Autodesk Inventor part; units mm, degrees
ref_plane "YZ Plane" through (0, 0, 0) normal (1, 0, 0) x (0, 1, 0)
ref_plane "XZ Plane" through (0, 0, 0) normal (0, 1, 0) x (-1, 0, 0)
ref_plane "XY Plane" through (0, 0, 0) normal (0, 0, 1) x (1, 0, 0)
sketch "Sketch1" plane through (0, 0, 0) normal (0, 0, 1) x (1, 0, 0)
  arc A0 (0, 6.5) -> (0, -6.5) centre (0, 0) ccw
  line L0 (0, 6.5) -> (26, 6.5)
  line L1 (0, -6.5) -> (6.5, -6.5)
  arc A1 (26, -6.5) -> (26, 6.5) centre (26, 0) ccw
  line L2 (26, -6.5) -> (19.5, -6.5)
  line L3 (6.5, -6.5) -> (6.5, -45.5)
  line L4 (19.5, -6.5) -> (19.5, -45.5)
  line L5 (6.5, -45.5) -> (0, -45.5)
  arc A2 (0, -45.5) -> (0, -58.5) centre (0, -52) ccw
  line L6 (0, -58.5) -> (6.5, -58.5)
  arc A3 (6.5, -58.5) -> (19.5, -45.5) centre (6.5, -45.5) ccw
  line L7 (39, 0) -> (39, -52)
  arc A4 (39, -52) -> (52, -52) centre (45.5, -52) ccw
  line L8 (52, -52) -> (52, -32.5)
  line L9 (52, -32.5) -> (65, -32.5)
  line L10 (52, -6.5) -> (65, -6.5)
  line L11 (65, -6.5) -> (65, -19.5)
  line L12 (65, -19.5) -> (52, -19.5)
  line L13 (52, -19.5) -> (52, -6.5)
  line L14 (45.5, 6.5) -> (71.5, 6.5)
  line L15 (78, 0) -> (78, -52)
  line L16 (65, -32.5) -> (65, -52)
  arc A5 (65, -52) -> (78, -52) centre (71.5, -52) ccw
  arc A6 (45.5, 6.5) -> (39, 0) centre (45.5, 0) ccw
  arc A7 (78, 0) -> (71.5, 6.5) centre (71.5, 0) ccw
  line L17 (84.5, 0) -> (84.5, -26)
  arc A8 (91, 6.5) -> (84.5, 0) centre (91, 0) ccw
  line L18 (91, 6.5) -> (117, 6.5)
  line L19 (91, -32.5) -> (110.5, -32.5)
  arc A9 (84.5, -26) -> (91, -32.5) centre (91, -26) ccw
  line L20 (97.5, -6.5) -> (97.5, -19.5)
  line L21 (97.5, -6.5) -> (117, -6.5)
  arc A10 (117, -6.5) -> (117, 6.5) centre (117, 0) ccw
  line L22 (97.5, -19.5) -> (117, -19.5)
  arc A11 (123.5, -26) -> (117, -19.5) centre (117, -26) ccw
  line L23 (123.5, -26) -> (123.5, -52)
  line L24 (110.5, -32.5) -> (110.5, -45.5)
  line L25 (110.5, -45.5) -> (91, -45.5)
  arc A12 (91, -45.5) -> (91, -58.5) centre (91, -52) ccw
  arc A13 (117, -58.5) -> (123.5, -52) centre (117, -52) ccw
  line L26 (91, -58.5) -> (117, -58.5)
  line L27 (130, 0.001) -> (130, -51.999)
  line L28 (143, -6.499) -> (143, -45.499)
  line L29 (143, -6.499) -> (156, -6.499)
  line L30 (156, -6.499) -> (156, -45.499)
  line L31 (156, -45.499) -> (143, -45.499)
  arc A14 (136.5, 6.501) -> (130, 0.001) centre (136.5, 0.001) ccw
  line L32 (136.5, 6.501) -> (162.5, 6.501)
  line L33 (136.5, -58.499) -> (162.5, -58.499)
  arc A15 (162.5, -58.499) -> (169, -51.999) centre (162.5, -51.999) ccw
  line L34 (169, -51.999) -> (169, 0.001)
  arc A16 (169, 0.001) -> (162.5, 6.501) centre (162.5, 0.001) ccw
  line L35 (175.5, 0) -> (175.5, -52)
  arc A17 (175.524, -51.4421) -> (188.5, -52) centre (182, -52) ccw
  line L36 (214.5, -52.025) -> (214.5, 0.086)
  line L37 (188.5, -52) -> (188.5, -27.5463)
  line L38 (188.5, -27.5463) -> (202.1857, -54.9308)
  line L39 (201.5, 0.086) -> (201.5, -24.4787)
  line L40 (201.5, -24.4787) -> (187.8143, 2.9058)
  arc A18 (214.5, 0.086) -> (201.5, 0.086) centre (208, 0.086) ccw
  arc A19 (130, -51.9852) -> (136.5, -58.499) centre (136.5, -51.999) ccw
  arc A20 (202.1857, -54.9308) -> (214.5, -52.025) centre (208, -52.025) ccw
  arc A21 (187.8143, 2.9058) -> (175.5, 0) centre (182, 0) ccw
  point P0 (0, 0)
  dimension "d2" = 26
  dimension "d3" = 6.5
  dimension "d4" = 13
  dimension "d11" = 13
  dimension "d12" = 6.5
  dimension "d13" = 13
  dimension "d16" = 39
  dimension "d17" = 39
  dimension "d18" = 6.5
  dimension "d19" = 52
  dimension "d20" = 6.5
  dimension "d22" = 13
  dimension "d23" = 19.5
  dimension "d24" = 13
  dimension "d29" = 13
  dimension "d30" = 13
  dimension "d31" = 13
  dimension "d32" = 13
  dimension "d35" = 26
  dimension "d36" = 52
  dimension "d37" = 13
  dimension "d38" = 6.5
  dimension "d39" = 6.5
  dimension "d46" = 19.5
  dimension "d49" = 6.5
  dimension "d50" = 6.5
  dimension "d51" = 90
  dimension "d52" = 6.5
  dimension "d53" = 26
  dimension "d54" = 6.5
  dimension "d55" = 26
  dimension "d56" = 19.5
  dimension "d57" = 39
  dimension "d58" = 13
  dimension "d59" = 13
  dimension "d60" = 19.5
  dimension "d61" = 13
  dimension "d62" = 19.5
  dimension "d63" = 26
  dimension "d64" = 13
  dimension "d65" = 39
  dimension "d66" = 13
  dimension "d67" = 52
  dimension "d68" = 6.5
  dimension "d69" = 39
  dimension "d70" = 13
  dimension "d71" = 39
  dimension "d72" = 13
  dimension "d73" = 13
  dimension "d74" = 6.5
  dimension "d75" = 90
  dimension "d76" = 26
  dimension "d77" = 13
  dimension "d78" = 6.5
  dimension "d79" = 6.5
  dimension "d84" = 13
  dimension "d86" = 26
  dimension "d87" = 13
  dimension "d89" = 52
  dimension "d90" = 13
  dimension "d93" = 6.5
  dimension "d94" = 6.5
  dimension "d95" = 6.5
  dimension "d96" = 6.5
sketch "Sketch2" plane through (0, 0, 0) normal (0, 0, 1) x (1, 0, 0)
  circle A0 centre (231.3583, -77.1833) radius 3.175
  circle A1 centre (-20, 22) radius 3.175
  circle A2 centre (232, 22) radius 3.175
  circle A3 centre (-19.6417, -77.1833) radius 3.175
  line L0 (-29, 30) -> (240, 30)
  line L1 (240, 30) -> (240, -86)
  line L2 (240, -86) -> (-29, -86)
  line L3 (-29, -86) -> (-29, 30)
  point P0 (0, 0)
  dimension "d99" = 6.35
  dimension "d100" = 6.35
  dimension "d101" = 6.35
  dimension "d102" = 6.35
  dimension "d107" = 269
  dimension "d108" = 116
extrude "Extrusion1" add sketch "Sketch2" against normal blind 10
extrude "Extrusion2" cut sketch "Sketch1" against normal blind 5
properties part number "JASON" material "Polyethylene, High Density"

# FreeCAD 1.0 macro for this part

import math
import FreeCAD as App
import Part
import Sketcher
from FreeCAD import Vector

doc = App.newDocument("Part")
body = doc.addObject("PartDesign::Body", "Body")

sketch1 = body.newObject("Sketcher::SketchObject", "Sketch")
sketch1.AttachmentSupport = (doc.getObject("XY_Plane"), [""])
sketch1.MapMode = "FlatFace"
sketch1.addGeometry(Part.LineSegment(Vector(240, 30, 0), Vector(-29, 30, 0)), False)
sketch1.addGeometry(Part.LineSegment(Vector(-29, 30, 0), Vector(-29, -86, 0)), False)
sketch1.addGeometry(Part.LineSegment(Vector(-29, -86, 0), Vector(240, -86, 0)), False)
sketch1.addGeometry(Part.LineSegment(Vector(240, -86, 0), Vector(240, 30, 0)), False)
sketch1.addGeometry(Part.Circle(Vector(-19.6, -77.2, 0), Vector(0, 0, 1), 3.2), False)
sketch1.addGeometry(Part.Circle(Vector(231.4, -77.2, 0), Vector(0, 0, 1), 3.2), False)
sketch1.addGeometry(Part.Circle(Vector(-20, 22, 0), Vector(0, 0, 1), 3.2), False)
sketch1.addGeometry(Part.Circle(Vector(232, 22, 0), Vector(0, 0, 1), 3.2), False)
sketch1.addConstraint(Sketcher.Constraint("Coincident", 0, 2, 1, 1))
sketch1.addConstraint(Sketcher.Constraint("Coincident", 1, 2, 2, 1))
sketch1.addConstraint(Sketcher.Constraint("Coincident", 2, 2, 3, 1))
sketch1.addConstraint(Sketcher.Constraint("Coincident", 3, 2, 0, 1))
sketch1.addConstraint(Sketcher.Constraint("Horizontal", 0))
sketch1.addConstraint(Sketcher.Constraint("Vertical", 1))
sketch1.addConstraint(Sketcher.Constraint("Horizontal", 2))
sketch1.addConstraint(Sketcher.Constraint("Vertical", 3))
sketch1.addConstraint(Sketcher.Constraint("Equal", 4, 5))
sketch1.addConstraint(Sketcher.Constraint("Equal", 5, 6))
sketch1.addConstraint(Sketcher.Constraint("Equal", 6, 7))
sketch1.addConstraint(Sketcher.Constraint("Horizontal", 4, 3, 5, 3))
sketch1.addConstraint(Sketcher.Constraint("Horizontal", 6, 3, 7, 3))
sketch1.addConstraint(Sketcher.Constraint("Diameter", 4, 6.35))
sketch1.addConstraint(Sketcher.Constraint("DistanceX", 0, 2, 0, 1, 269.0))
sketch1.addConstraint(Sketcher.Constraint("DistanceY", 1, 2, 1, 1, 116.0))
sketch1.addConstraint(Sketcher.Constraint("DistanceX", 6, 3, -1, 1, 20.0))
sketch1.addConstraint(Sketcher.Constraint("DistanceY", -1, 1, 6, 3, 22.0))
sketch1.addConstraint(Sketcher.Constraint("DistanceX", -1, 1, 7, 3, 232.0))
sketch1.addConstraint(Sketcher.Constraint("DistanceX", 0, 2, -1, 1, 29.0))
sketch1.addConstraint(Sketcher.Constraint("DistanceY", -1, 1, 0, 2, 30.0))
sketch1.addConstraint(Sketcher.Constraint("DistanceX", 4, 3, 5, 3, 251.0))
sketch1.addConstraint(Sketcher.Constraint("DistanceX", 4, 3, -1, 1, 19.6417))
sketch1.addConstraint(Sketcher.Constraint("DistanceY", 4, 3, -1, 1, 77.1833))
pad1 = body.newObject("PartDesign::Pad", "Pad")
pad1.Profile = sketch1
pad1.Length = 10
pad1.Reversed = True

sketch2 = body.newObject("Sketcher::SketchObject", "Sketch001")
sketch2.AttachmentSupport = (doc.getObject("XY_Plane"), [""])
sketch2.MapMode = "FlatFace"
sketch2.addGeometry(Part.LineSegment(Vector(26, 6, 0), Vector(0, 6, 0)), False)
sketch2.addGeometry(Part.ArcOfCircle(Part.Circle(Vector(0, 0, 0), Vector(0, 0, 1), 6), math.radians(90), math.radians(270)), False)
sketch2.addGeometry(Part.LineSegment(Vector(0, -6, 0), Vector(6, -6, 0)), False)
sketch2.addGeometry(Part.LineSegment(Vector(6, -6, 0), Vector(6, -46, 0)), False)
sketch2.addGeometry(Part.LineSegment(Vector(6, -46, 0), Vector(0, -46, 0)), False)
sketch2.addGeometry(Part.ArcOfCircle(Part.Circle(Vector(0, -52, 0), Vector(0, 0, 1), 6), math.radians(90), math.radians(270)), False)
sketch2.addGeometry(Part.LineSegment(Vector(0, -58, 0), Vector(6, -58, 0)), False)
sketch2.addGeometry(Part.ArcOfCircle(Part.Circle(Vector(6, -46, 0), Vector(0, 0, 1), 13), math.radians(-90), math.radians(0)), False)
sketch2.addGeometry(Part.LineSegment(Vector(20, -46, 0), Vector(20, -6, 0)), False)
sketch2.addGeometry(Part.LineSegment(Vector(20, -6, 0), Vector(26, -6, 0)), False)
sketch2.addGeometry(Part.ArcOfCircle(Part.Circle(Vector(26, 0, 0), Vector(0, 0, 1), 6), math.radians(-90), math.radians(90)), False)
sketch2.addGeometry(Part.ArcOfCircle(Part.Circle(Vector(46, 0, 0), Vector(0, 0, 1), 6), math.radians(90), math.radians(180)), False)
sketch2.addGeometry(Part.LineSegment(Vector(39, 0, 0), Vector(39, -52, 0)), False)
sketch2.addGeometry(Part.ArcOfCircle(Part.Circle(Vector(46, -52, 0), Vector(0, 0, 1), 6), math.radians(180), math.radians(360)), False)
sketch2.addGeometry(Part.LineSegment(Vector(52, -52, 0), Vector(52, -32, 0)), False)
sketch2.addGeometry(Part.LineSegment(Vector(52, -32, 0), Vector(65, -32, 0)), False)
sketch2.addGeometry(Part.LineSegment(Vector(65, -32, 0), Vector(65, -52, 0)), False)
sketch2.addGeometry(Part.ArcOfCircle(Part.Circle(Vector(72, -52, 0), Vector(0, 0, 1), 6), math.radians(180), math.radians(360)), False)
sketch2.addGeometry(Part.LineSegment(Vector(78, -52, 0), Vector(78, 0, 0)), False)
sketch2.addGeometry(Part.ArcOfCircle(Part.Circle(Vector(72, 0, 0), Vector(0, 0, 1), 6), math.radians(0), math.radians(90)), False)
sketch2.addGeometry(Part.LineSegment(Vector(72, 6, 0), Vector(46, 6, 0)), False)
sketch2.addGeometry(Part.LineSegment(Vector(52, -20, 0), Vector(52, -6, 0)), False)
sketch2.addGeometry(Part.LineSegment(Vector(52, -6, 0), Vector(65, -6, 0)), False)
sketch2.addGeometry(Part.LineSegment(Vector(65, -6, 0), Vector(65, -20, 0)), False)
sketch2.addGeometry(Part.LineSegment(Vector(65, -20, 0), Vector(52, -20, 0)), False)
sketch2.addGeometry(Part.ArcOfCircle(Part.Circle(Vector(91, 0, 0), Vector(0, 0, 1), 6), math.radians(90), math.radians(180)), False)
sketch2.addGeometry(Part.LineSegment(Vector(84, 0, 0), Vector(84, -26, 0)), False)
sketch2.addGeometry(Part.ArcOfCircle(Part.Circle(Vector(91, -26, 0), Vector(0, 0, 1), 6), math.radians(180), math.radians(270)), False)
sketch2.addGeometry(Part.LineSegment(Vector(91, -32, 0), Vector(110, -32, 0)), False)
sketch2.addGeometry(Part.LineSegment(Vector(110, -32, 0), Vector(110, -46, 0)), False)
sketch2.addGeometry(Part.LineSegment(Vector(110, -46, 0), Vector(91, -46, 0)), False)
sketch2.addGeometry(Part.ArcOfCircle(Part.Circle(Vector(91, -52, 0), Vector(0, 0, 1), 6), math.radians(90), math.radians(270)), False)
sketch2.addGeometry(Part.LineSegment(Vector(91, -58, 0), Vector(117, -58, 0)), False)
sketch2.addGeometry(Part.ArcOfCircle(Part.Circle(Vector(117, -52, 0), Vector(0, 0, 1), 6), math.radians(-90), math.radians(0)), False)
sketch2.addGeometry(Part.LineSegment(Vector(124, -52, 0), Vector(124, -26, 0)), False)
sketch2.addGeometry(Part.ArcOfCircle(Part.Circle(Vector(117, -26, 0), Vector(0, 0, 1), 6), math.radians(0), math.radians(90)), False)
sketch2.addGeometry(Part.LineSegment(Vector(117, -20, 0), Vector(98, -20, 0)), False)
sketch2.addGeometry(Part.LineSegment(Vector(98, -20, 0), Vector(98, -6, 0)), False)
sketch2.addGeometry(Part.LineSegment(Vector(98, -6, 0), Vector(117, -6, 0)), False)
sketch2.addGeometry(Part.ArcOfCircle(Part.Circle(Vector(117, 0, 0), Vector(0, 0, 1), 6), math.radians(-90), math.radians(90)), False)
sketch2.addGeometry(Part.LineSegment(Vector(117, 6, 0), Vector(91, 6, 0)), False)
sketch2.addGeometry(Part.ArcOfCircle(Part.Circle(Vector(136, 0, 0), Vector(0, 0, 1), 6), math.radians(90), math.radians(180)), False)
sketch2.addGeometry(Part.LineSegment(Vector(130, 0, 0), Vector(130, -52, 0)), False)
sketch2.addGeometry(Part.ArcOfCircle(Part.Circle(Vector(136, -52, 0), Vector(0, 0, 1), 7), math.radians(180), math.radians(270)), False)
sketch2.addGeometry(Part.LineSegment(Vector(136, -58, 0), Vector(162, -58, 0)), False)
sketch2.addGeometry(Part.ArcOfCircle(Part.Circle(Vector(162, -52, 0), Vector(0, 0, 1), 6), math.radians(-90), math.radians(0)), False)
sketch2.addGeometry(Part.LineSegment(Vector(169, -52, 0), Vector(169, 0, 0)), False)
sketch2.addGeometry(Part.ArcOfCircle(Part.Circle(Vector(162, 0, 0), Vector(0, 0, 1), 6), math.radians(0), math.radians(90)), False)
sketch2.addGeometry(Part.LineSegment(Vector(162, 7, 0), Vector(136, 7, 0)), False)
sketch2.addGeometry(Part.LineSegment(Vector(143, -45, 0), Vector(143, -6, 0)), False)
sketch2.addGeometry(Part.LineSegment(Vector(143, -6, 0), Vector(156, -6, 0)), False)
sketch2.addGeometry(Part.LineSegment(Vector(156, -6, 0), Vector(156, -45, 0)), False)
sketch2.addGeometry(Part.LineSegment(Vector(156, -45, 0), Vector(143, -45, 0)), False)
sketch2.addGeometry(Part.ArcOfCircle(Part.Circle(Vector(182, 0, 0), Vector(0, 0, 1), 6), math.radians(27), math.radians(180)), False)
sketch2.addGeometry(Part.LineSegment(Vector(176, 0, 0), Vector(176, -52, 0)), False)
sketch2.addGeometry(Part.ArcOfCircle(Part.Circle(Vector(182, -52, 0), Vector(0, 0, 1), 6), math.radians(180), math.radians(360)), False)
sketch2.addGeometry(Part.LineSegment(Vector(188, -52, 0), Vector(188, -28, 0)), False)
sketch2.addGeometry(Part.LineSegment(Vector(188, -28, 0), Vector(202, -55, 0)), False)
sketch2.addGeometry(Part.ArcOfCircle(Part.Circle(Vector(208, -52, 0), Vector(0, 0, 1), 6), math.radians(-153), math.radians(0)), False)
sketch2.addGeometry(Part.LineSegment(Vector(214, -52, 0), Vector(214, 0, 0)), False)
sketch2.addGeometry(Part.ArcOfCircle(Part.Circle(Vector(208, 0, 0), Vector(0, 0, 1), 6), math.radians(0), math.radians(180)), False)
sketch2.addGeometry(Part.LineSegment(Vector(202, 0, 0), Vector(202, -24, 0)), False)
sketch2.addGeometry(Part.LineSegment(Vector(202, -24, 0), Vector(188, 3, 0)), False)
sketch2.addConstraint(Sketcher.Constraint("Tangent", 0, 2, 1, 1))
sketch2.addConstraint(Sketcher.Constraint("Tangent", 1, 2, 2, 1))
sketch2.addConstraint(Sketcher.Constraint("Coincident", 2, 2, 3, 1))
sketch2.addConstraint(Sketcher.Constraint("Coincident", 3, 2, 4, 1))
sketch2.addConstraint(Sketcher.Constraint("Tangent", 4, 2, 5, 1))
sketch2.addConstraint(Sketcher.Constraint("Tangent", 5, 2, 6, 1))
sketch2.addConstraint(Sketcher.Constraint("Tangent", 6, 2, 7, 1))
sketch2.addConstraint(Sketcher.Constraint("Tangent", 7, 2, 8, 1))
sketch2.addConstraint(Sketcher.Constraint("Coincident", 8, 2, 9, 1))
sketch2.addConstraint(Sketcher.Constraint("Tangent", 9, 2, 10, 1))
sketch2.addConstraint(Sketcher.Constraint("Tangent", 10, 2, 0, 1))
sketch2.addConstraint(Sketcher.Constraint("Tangent", 11, 2, 12, 1))
sketch2.addConstraint(Sketcher.Constraint("Tangent", 12, 2, 13, 1))
sketch2.addConstraint(Sketcher.Constraint("Tangent", 13, 2, 14, 1))
sketch2.addConstraint(Sketcher.Constraint("Coincident", 14, 2, 15, 1))
sketch2.addConstraint(Sketcher.Constraint("Coincident", 15, 2, 16, 1))
sketch2.addConstraint(Sketcher.Constraint("Tangent", 16, 2, 17, 1))
sketch2.addConstraint(Sketcher.Constraint("Tangent", 17, 2, 18, 1))
sketch2.addConstraint(Sketcher.Constraint("Tangent", 18, 2, 19, 1))
sketch2.addConstraint(Sketcher.Constraint("Tangent", 19, 2, 20, 1))
sketch2.addConstraint(Sketcher.Constraint("Tangent", 20, 2, 11, 1))
sketch2.addConstraint(Sketcher.Constraint("Coincident", 21, 2, 22, 1))
sketch2.addConstraint(Sketcher.Constraint("Coincident", 22, 2, 23, 1))
sketch2.addConstraint(Sketcher.Constraint("Coincident", 23, 2, 24, 1))
sketch2.addConstraint(Sketcher.Constraint("Coincident", 24, 2, 21, 1))
sketch2.addConstraint(Sketcher.Constraint("Tangent", 25, 2, 26, 1))
sketch2.addConstraint(Sketcher.Constraint("Tangent", 26, 2, 27, 1))
sketch2.addConstraint(Sketcher.Constraint("Tangent", 27, 2, 28, 1))
sketch2.addConstraint(Sketcher.Constraint("Coincident", 28, 2, 29, 1))
sketch2.addConstraint(Sketcher.Constraint("Coincident", 29, 2, 30, 1))
sketch2.addConstraint(Sketcher.Constraint("Tangent", 30, 2, 31, 1))
sketch2.addConstraint(Sketcher.Constraint("Tangent", 31, 2, 32, 1))
sketch2.addConstraint(Sketcher.Constraint("Tangent", 32, 2, 33, 1))
sketch2.addConstraint(Sketcher.Constraint("Tangent", 33, 2, 34, 1))
sketch2.addConstraint(Sketcher.Constraint("Tangent", 34, 2, 35, 1))
sketch2.addConstraint(Sketcher.Constraint("Tangent", 35, 2, 36, 1))
sketch2.addConstraint(Sketcher.Constraint("Coincident", 36, 2, 37, 1))
sketch2.addConstraint(Sketcher.Constraint("Coincident", 37, 2, 38, 1))
sketch2.addConstraint(Sketcher.Constraint("Tangent", 38, 2, 39, 1))
sketch2.addConstraint(Sketcher.Constraint("Tangent", 39, 2, 40, 1))
sketch2.addConstraint(Sketcher.Constraint("Tangent", 40, 2, 25, 1))
sketch2.addConstraint(Sketcher.Constraint("Tangent", 41, 2, 42, 1))
sketch2.addConstraint(Sketcher.Constraint("Tangent", 42, 2, 43, 1))
sketch2.addConstraint(Sketcher.Constraint("Tangent", 43, 2, 44, 1))
sketch2.addConstraint(Sketcher.Constraint("Tangent", 44, 2, 45, 1))
sketch2.addConstraint(Sketcher.Constraint("Tangent", 45, 2, 46, 1))
sketch2.addConstraint(Sketcher.Constraint("Tangent", 46, 2, 47, 1))
sketch2.addConstraint(Sketcher.Constraint("Tangent", 47, 2, 48, 1))
sketch2.addConstraint(Sketcher.Constraint("Tangent", 48, 2, 41, 1))
sketch2.addConstraint(Sketcher.Constraint("Coincident", 49, 2, 50, 1))
sketch2.addConstraint(Sketcher.Constraint("Coincident", 50, 2, 51, 1))
sketch2.addConstraint(Sketcher.Constraint("Coincident", 51, 2, 52, 1))
sketch2.addConstraint(Sketcher.Constraint("Coincident", 52, 2, 49, 1))
sketch2.addConstraint(Sketcher.Constraint("Tangent", 53, 2, 54, 1))
sketch2.addConstraint(Sketcher.Constraint("Tangent", 54, 2, 55, 1))
sketch2.addConstraint(Sketcher.Constraint("Tangent", 55, 2, 56, 1))
sketch2.addConstraint(Sketcher.Constraint("Coincident", 56, 2, 57, 1))
sketch2.addConstraint(Sketcher.Constraint("Tangent", 57, 2, 58, 1))
sketch2.addConstraint(Sketcher.Constraint("Tangent", 58, 2, 59, 1))
sketch2.addConstraint(Sketcher.Constraint("Tangent", 59, 2, 60, 1))
sketch2.addConstraint(Sketcher.Constraint("Tangent", 60, 2, 61, 1))
sketch2.addConstraint(Sketcher.Constraint("Coincident", 61, 2, 62, 1))
sketch2.addConstraint(Sketcher.Constraint("Tangent", 62, 2, 53, 1))
sketch2.addConstraint(Sketcher.Constraint("Horizontal", 0))
sketch2.addConstraint(Sketcher.Constraint("Horizontal", 2))
sketch2.addConstraint(Sketcher.Constraint("Vertical", 3))
sketch2.addConstraint(Sketcher.Constraint("Horizontal", 4))
sketch2.addConstraint(Sketcher.Constraint("Horizontal", 6))
sketch2.addConstraint(Sketcher.Constraint("Vertical", 8))
sketch2.addConstraint(Sketcher.Constraint("Horizontal", 9))
sketch2.addConstraint(Sketcher.Constraint("Vertical", 12))
sketch2.addConstraint(Sketcher.Constraint("Vertical", 14))
sketch2.addConstraint(Sketcher.Constraint("Horizontal", 15))
sketch2.addConstraint(Sketcher.Constraint("Vertical", 16))
sketch2.addConstraint(Sketcher.Constraint("Vertical", 18))
sketch2.addConstraint(Sketcher.Constraint("Horizontal", 20))
sketch2.addConstraint(Sketcher.Constraint("Vertical", 21))
sketch2.addConstraint(Sketcher.Constraint("Horizontal", 22))
sketch2.addConstraint(Sketcher.Constraint("Vertical", 23))
sketch2.addConstraint(Sketcher.Constraint("Horizontal", 24))
sketch2.addConstraint(Sketcher.Constraint("Vertical", 26))
sketch2.addConstraint(Sketcher.Constraint("Horizontal", 28))
sketch2.addConstraint(Sketcher.Constraint("Vertical", 29))
sketch2.addConstraint(Sketcher.Constraint("Horizontal", 30))
sketch2.addConstraint(Sketcher.Constraint("Horizontal", 32))
sketch2.addConstraint(Sketcher.Constraint("Vertical", 34))
sketch2.addConstraint(Sketcher.Constraint("Horizontal", 36))
sketch2.addConstraint(Sketcher.Constraint("Vertical", 37))
sketch2.addConstraint(Sketcher.Constraint("Horizontal", 38))
sketch2.addConstraint(Sketcher.Constraint("Horizontal", 40))
sketch2.addConstraint(Sketcher.Constraint("Vertical", 42))
sketch2.addConstraint(Sketcher.Constraint("Horizontal", 44))
sketch2.addConstraint(Sketcher.Constraint("Vertical", 46))
sketch2.addConstraint(Sketcher.Constraint("Horizontal", 48))
sketch2.addConstraint(Sketcher.Constraint("Vertical", 49))
sketch2.addConstraint(Sketcher.Constraint("Horizontal", 50))
sketch2.addConstraint(Sketcher.Constraint("Vertical", 51))
sketch2.addConstraint(Sketcher.Constraint("Horizontal", 52))
sketch2.addConstraint(Sketcher.Constraint("Vertical", 54))
sketch2.addConstraint(Sketcher.Constraint("Vertical", 56))
sketch2.addConstraint(Sketcher.Constraint("Vertical", 59))
sketch2.addConstraint(Sketcher.Constraint("Vertical", 61))
sketch2.addConstraint(Sketcher.Constraint("Coincident", 1, 3, -1, 1))
sketch2.addConstraint(Sketcher.Constraint("Coincident", 3, 2, 7, 3))
sketch2.addConstraint(Sketcher.Constraint("Equal", 1, 5))
sketch2.addConstraint(Sketcher.Constraint("Equal", 5, 10))
sketch2.addConstraint(Sketcher.Constraint("Equal", 10, 11))
sketch2.addConstraint(Sketcher.Constraint("Equal", 11, 13))
sketch2.addConstraint(Sketcher.Constraint("Equal", 13, 17))
sketch2.addConstraint(Sketcher.Constraint("Equal", 17, 19))
sketch2.addConstraint(Sketcher.Constraint("Equal", 19, 25))
sketch2.addConstraint(Sketcher.Constraint("Equal", 25, 27))
sketch2.addConstraint(Sketcher.Constraint("Equal", 27, 31))
sketch2.addConstraint(Sketcher.Constraint("Equal", 31, 33))
sketch2.addConstraint(Sketcher.Constraint("Equal", 33, 35))
sketch2.addConstraint(Sketcher.Constraint("Equal", 35, 39))
sketch2.addConstraint(Sketcher.Constraint("Equal", 39, 41))
sketch2.addConstraint(Sketcher.Constraint("Equal", 41, 43))
sketch2.addConstraint(Sketcher.Constraint("Equal", 43, 45))
sketch2.addConstraint(Sketcher.Constraint("Equal", 45, 47))
sketch2.addConstraint(Sketcher.Constraint("Equal", 47, 53))
sketch2.addConstraint(Sketcher.Constraint("Equal", 53, 55))
sketch2.addConstraint(Sketcher.Constraint("Equal", 55, 58))
sketch2.addConstraint(Sketcher.Constraint("Equal", 58, 60))
sketch2.addConstraint(Sketcher.Constraint("PointOnObject", 5, 3, -2))
sketch2.addConstraint(Sketcher.Constraint("PointOnObject", 11, 3, -1))
sketch2.addConstraint(Sketcher.Constraint("PointOnObject", 25, 3, -1))
sketch2.addConstraint(Sketcher.Constraint("PointOnObject", 53, 3, -1))
sketch2.addConstraint(Sketcher.Constraint("Parallel", 57, 62))
sketch2.addConstraint(Sketcher.Constraint("Horizontal", 5, 3, 13, 3))
sketch2.addConstraint(Sketcher.Constraint("Horizontal", 13, 3, 17, 3))
sketch2.addConstraint(Sketcher.Constraint("Horizontal", 17, 3, 31, 3))
sketch2.addConstraint(Sketcher.Constraint("Horizontal", 27, 3, 35, 3))
sketch2.addConstraint(Sketcher.Constraint("Horizontal", 33, 3, 55, 3))
sketch2.addConstraint(Sketcher.Constraint("Horizontal", 9, 2, 21, 2))
sketch2.addConstraint(Sketcher.Constraint("Horizontal", 15, 2, 27, 2))
sketch2.addConstraint(Sketcher.Constraint("Horizontal", 24, 2, 35, 2))
sketch2.addConstraint(Sketcher.Constraint("Vertical", 27, 3, 31, 3))
sketch2.addConstraint(Sketcher.Constraint("Vertical", 35, 3, 39, 3))
sketch2.addConstraint(Sketcher.Constraint("Vertical", 14, 2, 21, 2))
sketch2.addConstraint(Sketcher.Constraint("Vertical", 16, 2, 22, 2))
sketch2.addConstraint(Sketcher.Constraint("Equal", 6, 9))
sketch2.addConstraint(Sketcher.Constraint("Equal", 0, 20))
sketch2.addConstraint(Sketcher.Constraint("Equal", 20, 32))
sketch2.addConstraint(Sketcher.Constraint("Equal", 30, 36))
sketch2.addConstraint(Sketcher.Constraint("Equal", 40, 44))
sketch2.addConstraint(Sketcher.Constraint("Equal", 24, 50))
sketch2.addConstraint(Sketcher.Constraint("Equal", 38, 14))
sketch2.addConstraint(Sketcher.Constraint("Equal", 52, 21))
sketch2.addConstraint(Sketcher.Constraint("Equal", 23, 29))
sketch2.addConstraint(Sketcher.Constraint("Equal", 18, 42))
sketch2.addConstraint(Sketcher.Constraint("Equal", 8, 49))
sketch2.addConstraint(Sketcher.Constraint("Radius", 7, 13.0))
sketch2.addConstraint(Sketcher.Constraint("DistanceX", 0, 2, 0, 1, 26.0))
sketch2.addConstraint(Sketcher.Constraint("DistanceX", -1, 1, 11, 2, 39.0))
sketch2.addConstraint(Sketcher.Constraint("DistanceX", -1, 1, 25, 3, 91.0))
sketch2.addConstraint(Sketcher.Constraint("DistanceX", -1, 1, 53, 3, 182.0))
sketch2.addConstraint(Sketcher.Constraint("DistanceX", -1, 1, 58, 3, 208.0))
sketch2.addConstraint(Sketcher.Constraint("DistanceX", -1, 1, 41, 2, 130.0))
sketch2.addConstraint(Sketcher.Constraint("DistanceX", -1, 1, 49, 2, 143.0))
sketch2.addConstraint(Sketcher.Constraint("DistanceY", 59, 1, 59, 2, 52.111))
sketch2.addConstraint(Sketcher.Constraint("DistanceY", 56, 1, 56, 2, 24.4537))
sketch2.addConstraint(Sketcher.Constraint("DistanceY", -1, 1, 41, 3, 0.001))
sketch2.addConstraint(Sketcher.Constraint("DistanceY", 58, 3, -1, 1, 52.025))
sketch2.addConstraint(Sketcher.Constraint("DistanceY", 49, 2, -1, 1, 6.499))
pocket1 = body.newObject("PartDesign::Pocket", "Pocket")
pocket1.Profile = sketch2
pocket1.Length = 5

doc.recompute()
